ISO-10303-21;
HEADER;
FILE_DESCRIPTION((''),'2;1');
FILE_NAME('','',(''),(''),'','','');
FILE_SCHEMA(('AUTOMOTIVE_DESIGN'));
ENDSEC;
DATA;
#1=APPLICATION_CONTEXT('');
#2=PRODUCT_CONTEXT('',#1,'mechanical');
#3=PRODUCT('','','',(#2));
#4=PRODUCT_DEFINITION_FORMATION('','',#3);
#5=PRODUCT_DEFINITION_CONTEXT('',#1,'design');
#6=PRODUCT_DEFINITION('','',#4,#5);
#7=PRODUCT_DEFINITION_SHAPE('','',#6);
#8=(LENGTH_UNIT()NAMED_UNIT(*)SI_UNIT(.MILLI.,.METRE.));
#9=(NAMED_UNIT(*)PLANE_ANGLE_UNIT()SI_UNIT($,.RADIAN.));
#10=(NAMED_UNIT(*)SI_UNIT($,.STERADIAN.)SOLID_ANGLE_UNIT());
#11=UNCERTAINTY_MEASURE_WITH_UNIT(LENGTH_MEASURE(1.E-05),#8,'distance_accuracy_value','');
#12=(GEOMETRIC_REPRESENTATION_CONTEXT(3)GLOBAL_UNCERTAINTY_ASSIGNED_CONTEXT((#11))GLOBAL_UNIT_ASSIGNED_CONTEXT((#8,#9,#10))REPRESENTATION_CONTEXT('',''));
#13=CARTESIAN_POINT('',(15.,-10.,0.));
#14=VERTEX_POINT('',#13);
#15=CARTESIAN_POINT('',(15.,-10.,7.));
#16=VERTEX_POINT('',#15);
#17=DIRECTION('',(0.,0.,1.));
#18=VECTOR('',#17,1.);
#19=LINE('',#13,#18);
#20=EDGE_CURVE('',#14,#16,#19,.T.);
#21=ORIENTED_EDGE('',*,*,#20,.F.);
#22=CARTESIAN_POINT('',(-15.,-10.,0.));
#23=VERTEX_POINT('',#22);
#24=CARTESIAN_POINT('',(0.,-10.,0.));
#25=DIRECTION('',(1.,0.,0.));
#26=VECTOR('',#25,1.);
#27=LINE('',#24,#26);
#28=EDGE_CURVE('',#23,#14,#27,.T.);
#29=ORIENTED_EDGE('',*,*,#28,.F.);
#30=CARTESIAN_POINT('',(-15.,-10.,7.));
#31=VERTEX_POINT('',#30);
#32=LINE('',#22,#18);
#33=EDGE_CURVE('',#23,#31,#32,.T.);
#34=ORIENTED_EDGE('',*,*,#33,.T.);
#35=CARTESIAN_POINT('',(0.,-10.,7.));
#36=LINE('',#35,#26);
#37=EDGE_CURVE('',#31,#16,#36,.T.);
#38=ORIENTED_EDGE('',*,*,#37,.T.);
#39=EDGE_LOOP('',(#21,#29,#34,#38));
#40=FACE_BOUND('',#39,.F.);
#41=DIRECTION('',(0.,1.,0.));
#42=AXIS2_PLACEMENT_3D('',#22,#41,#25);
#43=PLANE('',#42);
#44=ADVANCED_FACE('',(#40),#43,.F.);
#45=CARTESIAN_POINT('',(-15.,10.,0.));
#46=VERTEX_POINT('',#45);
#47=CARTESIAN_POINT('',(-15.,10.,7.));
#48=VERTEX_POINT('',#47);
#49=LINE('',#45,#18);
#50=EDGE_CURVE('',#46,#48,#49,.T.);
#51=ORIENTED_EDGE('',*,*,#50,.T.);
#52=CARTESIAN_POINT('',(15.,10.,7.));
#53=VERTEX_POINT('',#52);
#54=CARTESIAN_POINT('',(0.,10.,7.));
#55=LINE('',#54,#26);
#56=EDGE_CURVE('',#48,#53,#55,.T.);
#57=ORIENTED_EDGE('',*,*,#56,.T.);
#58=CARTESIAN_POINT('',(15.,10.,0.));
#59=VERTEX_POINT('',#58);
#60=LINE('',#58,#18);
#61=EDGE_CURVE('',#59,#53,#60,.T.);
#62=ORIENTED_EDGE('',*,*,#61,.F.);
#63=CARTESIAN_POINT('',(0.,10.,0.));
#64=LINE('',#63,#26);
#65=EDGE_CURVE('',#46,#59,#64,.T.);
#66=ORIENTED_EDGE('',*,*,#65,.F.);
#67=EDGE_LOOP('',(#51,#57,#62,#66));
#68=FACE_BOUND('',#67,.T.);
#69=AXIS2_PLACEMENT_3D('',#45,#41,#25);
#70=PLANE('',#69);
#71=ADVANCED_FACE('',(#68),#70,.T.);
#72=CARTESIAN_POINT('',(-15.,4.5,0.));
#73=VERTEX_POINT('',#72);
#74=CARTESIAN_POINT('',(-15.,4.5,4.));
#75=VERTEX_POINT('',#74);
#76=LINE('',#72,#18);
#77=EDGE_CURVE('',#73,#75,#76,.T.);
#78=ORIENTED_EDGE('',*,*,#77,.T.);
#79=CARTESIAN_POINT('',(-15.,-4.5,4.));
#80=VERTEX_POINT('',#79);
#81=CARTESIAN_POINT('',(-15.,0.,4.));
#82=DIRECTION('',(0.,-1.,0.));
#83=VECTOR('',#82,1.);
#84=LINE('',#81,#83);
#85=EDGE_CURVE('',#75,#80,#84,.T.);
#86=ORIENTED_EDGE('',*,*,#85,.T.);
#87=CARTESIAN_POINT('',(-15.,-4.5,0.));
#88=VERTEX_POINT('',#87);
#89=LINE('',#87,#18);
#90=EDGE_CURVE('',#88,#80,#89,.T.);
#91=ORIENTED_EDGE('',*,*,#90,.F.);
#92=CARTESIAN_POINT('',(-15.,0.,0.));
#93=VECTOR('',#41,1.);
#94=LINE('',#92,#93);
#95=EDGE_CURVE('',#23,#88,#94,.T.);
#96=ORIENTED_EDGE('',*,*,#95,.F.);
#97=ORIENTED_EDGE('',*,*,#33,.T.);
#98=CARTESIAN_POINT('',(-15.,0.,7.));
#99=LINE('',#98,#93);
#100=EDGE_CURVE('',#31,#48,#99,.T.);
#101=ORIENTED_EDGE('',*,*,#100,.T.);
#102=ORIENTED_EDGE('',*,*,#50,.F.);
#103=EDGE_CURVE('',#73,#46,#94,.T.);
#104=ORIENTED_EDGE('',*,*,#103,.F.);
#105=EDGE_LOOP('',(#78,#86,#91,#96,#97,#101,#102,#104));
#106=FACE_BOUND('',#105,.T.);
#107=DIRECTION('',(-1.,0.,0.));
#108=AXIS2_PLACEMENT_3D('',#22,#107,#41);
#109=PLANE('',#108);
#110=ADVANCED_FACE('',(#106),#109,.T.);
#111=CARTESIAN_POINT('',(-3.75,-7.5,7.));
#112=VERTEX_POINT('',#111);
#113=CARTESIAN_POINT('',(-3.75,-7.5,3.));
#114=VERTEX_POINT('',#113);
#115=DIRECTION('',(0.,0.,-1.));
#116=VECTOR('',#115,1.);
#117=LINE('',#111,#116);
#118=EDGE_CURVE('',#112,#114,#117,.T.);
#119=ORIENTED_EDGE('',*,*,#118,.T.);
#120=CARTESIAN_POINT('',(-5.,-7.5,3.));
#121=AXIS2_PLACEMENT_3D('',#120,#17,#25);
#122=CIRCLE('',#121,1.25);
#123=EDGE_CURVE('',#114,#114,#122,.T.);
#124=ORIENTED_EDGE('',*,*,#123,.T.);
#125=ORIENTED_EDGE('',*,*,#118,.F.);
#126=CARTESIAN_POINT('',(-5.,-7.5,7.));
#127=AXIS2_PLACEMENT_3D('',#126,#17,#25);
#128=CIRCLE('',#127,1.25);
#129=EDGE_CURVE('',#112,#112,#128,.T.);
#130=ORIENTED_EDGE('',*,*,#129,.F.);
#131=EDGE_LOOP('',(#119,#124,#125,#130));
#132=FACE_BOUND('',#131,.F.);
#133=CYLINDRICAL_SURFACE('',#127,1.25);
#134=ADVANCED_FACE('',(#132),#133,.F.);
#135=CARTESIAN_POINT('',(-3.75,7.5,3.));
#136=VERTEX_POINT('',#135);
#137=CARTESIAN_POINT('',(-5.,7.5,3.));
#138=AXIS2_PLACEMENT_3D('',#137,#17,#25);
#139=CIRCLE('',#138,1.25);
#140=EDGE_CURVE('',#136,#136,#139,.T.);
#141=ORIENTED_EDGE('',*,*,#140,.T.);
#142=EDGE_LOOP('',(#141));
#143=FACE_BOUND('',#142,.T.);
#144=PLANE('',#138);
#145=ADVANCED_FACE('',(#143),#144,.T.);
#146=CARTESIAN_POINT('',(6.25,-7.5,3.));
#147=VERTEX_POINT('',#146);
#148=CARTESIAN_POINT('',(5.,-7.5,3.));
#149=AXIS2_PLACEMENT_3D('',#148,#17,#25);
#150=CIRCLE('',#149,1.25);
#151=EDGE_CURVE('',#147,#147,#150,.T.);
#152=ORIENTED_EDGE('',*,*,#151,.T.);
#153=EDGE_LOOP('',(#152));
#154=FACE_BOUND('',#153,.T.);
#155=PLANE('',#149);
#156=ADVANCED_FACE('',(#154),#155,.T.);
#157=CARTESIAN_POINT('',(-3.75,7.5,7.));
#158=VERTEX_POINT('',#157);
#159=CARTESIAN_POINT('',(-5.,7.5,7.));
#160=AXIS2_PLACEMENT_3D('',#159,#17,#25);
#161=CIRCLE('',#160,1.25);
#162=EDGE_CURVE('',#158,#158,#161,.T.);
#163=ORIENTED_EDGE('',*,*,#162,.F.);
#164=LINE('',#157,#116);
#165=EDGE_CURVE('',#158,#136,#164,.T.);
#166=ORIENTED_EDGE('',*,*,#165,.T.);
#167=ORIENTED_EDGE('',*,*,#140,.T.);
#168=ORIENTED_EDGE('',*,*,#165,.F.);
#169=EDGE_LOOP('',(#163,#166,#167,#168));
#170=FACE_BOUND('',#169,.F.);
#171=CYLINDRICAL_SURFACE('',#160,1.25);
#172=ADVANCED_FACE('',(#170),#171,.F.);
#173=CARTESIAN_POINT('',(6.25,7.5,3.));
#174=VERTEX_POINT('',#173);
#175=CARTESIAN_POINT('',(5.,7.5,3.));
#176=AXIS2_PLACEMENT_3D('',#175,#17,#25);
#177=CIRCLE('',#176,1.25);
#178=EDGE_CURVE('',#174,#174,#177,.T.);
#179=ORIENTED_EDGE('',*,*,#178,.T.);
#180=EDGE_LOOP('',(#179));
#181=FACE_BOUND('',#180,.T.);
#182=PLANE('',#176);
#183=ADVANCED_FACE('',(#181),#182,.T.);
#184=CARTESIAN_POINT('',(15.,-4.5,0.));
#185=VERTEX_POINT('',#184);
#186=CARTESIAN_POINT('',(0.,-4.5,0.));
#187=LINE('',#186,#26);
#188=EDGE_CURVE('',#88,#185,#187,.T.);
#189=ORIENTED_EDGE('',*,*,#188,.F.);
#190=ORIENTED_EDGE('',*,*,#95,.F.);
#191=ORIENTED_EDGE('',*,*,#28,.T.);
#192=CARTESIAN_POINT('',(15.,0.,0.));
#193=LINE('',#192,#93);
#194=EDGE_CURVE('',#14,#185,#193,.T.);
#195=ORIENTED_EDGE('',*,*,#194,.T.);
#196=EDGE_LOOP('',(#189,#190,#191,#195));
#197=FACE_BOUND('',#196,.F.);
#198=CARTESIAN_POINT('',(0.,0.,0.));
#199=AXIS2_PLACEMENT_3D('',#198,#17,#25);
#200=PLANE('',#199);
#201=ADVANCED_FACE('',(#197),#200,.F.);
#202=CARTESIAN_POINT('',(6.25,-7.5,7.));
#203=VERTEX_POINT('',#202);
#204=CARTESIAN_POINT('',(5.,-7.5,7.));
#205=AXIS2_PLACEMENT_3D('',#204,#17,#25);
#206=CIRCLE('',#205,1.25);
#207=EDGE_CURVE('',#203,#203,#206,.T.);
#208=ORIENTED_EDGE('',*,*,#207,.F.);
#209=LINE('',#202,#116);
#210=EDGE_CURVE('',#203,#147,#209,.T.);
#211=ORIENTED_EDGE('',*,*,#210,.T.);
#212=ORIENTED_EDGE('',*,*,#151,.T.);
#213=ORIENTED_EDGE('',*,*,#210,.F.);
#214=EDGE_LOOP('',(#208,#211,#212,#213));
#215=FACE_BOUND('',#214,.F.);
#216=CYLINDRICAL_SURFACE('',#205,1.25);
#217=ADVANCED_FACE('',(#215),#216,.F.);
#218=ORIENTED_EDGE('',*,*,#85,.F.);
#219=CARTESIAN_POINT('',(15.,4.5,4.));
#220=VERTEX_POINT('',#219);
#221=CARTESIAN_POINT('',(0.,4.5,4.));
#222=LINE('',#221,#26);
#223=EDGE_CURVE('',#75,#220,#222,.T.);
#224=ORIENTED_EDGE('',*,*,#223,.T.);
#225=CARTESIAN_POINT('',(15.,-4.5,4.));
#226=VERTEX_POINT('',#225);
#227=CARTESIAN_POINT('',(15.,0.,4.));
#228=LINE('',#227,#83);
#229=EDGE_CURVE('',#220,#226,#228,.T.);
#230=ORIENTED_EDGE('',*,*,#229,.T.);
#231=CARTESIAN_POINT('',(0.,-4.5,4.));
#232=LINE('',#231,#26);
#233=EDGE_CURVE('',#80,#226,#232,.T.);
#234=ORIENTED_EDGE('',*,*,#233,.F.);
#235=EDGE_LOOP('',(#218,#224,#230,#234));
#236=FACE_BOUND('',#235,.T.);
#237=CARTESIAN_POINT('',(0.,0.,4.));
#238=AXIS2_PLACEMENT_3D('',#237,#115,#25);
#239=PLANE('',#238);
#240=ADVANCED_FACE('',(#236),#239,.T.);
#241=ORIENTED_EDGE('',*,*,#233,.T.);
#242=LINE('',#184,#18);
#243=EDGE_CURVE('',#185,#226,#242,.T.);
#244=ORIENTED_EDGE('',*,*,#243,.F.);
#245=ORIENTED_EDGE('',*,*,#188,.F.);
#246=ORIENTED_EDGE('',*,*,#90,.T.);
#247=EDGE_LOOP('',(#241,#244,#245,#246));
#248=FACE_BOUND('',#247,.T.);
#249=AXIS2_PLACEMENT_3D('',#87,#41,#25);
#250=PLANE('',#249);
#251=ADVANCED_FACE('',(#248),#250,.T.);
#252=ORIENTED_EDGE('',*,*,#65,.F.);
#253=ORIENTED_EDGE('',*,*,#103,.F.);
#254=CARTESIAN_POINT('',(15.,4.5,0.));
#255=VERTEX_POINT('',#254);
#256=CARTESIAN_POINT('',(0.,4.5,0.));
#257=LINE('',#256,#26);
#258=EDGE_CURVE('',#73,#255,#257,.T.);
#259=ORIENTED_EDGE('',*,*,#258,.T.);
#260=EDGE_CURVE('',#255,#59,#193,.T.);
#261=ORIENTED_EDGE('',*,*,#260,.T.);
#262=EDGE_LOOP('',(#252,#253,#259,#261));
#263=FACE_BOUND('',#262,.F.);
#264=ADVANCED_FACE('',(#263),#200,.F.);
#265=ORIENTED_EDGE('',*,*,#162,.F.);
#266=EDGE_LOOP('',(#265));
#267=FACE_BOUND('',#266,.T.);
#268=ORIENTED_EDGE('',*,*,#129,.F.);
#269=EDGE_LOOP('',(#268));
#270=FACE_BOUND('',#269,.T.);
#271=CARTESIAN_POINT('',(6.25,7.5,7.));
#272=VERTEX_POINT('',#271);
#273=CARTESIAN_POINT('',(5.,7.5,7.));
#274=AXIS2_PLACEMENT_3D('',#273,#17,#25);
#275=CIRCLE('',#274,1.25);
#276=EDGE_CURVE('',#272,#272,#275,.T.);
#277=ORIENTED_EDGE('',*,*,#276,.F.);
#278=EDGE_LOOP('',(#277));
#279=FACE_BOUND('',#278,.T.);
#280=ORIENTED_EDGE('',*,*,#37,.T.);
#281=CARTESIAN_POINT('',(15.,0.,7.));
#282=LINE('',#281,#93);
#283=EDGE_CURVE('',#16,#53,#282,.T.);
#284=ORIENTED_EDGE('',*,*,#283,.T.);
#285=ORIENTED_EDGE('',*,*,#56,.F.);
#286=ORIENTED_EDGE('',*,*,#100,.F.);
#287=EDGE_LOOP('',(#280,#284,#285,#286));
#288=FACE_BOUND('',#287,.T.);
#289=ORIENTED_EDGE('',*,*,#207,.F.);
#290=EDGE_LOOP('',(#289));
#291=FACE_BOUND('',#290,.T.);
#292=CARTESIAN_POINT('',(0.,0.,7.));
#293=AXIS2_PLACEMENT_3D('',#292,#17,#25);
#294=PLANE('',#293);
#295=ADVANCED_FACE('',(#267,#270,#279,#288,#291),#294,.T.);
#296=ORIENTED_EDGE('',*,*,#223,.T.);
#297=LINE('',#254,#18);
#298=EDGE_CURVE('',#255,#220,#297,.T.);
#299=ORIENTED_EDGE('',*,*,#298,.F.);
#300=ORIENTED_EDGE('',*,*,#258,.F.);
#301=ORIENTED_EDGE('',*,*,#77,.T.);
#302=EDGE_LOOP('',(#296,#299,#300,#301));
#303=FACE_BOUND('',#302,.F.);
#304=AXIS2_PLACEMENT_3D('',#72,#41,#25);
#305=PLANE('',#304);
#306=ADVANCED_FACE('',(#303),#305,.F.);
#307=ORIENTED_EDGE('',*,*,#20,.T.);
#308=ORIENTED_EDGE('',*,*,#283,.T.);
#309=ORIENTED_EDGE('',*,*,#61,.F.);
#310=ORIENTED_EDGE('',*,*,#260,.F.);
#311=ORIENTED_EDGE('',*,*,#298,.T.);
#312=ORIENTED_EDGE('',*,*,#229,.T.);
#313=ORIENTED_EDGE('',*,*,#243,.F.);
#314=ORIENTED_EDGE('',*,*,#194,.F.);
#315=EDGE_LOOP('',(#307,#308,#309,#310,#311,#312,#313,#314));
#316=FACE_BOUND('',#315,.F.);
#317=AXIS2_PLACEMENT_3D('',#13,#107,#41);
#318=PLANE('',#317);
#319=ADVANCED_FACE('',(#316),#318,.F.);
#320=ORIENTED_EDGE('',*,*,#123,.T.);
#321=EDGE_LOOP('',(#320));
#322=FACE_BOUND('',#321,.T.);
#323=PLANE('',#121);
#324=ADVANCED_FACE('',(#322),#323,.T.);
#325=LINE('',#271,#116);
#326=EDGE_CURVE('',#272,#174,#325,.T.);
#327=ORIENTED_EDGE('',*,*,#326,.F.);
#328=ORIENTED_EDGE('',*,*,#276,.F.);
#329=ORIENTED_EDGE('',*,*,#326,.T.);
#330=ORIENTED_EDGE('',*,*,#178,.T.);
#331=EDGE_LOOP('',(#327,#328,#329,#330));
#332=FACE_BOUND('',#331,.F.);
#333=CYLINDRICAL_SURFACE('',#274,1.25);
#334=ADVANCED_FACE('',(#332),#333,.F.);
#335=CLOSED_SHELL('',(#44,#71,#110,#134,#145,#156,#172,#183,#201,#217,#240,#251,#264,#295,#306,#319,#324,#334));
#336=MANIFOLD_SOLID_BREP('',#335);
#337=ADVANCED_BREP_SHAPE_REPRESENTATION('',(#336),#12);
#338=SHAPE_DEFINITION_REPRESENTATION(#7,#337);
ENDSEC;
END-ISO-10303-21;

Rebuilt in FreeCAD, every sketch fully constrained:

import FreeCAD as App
import Part
import Sketcher

V = App.Vector

doc = App.newDocument("Part")
body = doc.addObject("PartDesign::Body", "Body")

sketch1 = doc.addObject("Sketcher::SketchObject", "Sketch")
body.addObject(sketch1)
sketch1.AttachmentSupport = (doc.XY_Plane, [""])
sketch1.MapMode = "FlatFace"
sketch1.addGeometry(Part.LineSegment(V(-15, 10, 0), V(-15, -10, 0)), False)
sketch1.addGeometry(Part.LineSegment(V(-15, -10, 0), V(15, -10, 0)), False)
sketch1.addGeometry(Part.LineSegment(V(15, -10, 0), V(15, 10, 0)), False)
sketch1.addGeometry(Part.LineSegment(V(15, 10, 0), V(-15, 10, 0)), False)
sketch1.addConstraint(Sketcher.Constraint("Coincident", 0, 2, 1, 1))
sketch1.addConstraint(Sketcher.Constraint("Coincident", 1, 2, 2, 1))
sketch1.addConstraint(Sketcher.Constraint("Coincident", 2, 2, 3, 1))
sketch1.addConstraint(Sketcher.Constraint("Coincident", 3, 2, 0, 1))
sketch1.addConstraint(Sketcher.Constraint("Vertical", 0))
sketch1.addConstraint(Sketcher.Constraint("Horizontal", 1))
sketch1.addConstraint(Sketcher.Constraint("Vertical", 2))
sketch1.addConstraint(Sketcher.Constraint("Horizontal", 3))
sketch1.addConstraint(Sketcher.Constraint("Symmetric", 0, 2, 2, 2, -1, 1))
sketch1.addConstraint(Sketcher.Constraint("DistanceX", 1, 1, 1, 2, 30.0))
sketch1.addConstraint(Sketcher.Constraint("DistanceY", 0, 2, 0, 1, 20.0))
pad1 = doc.addObject("PartDesign::Pad", "Pad")
body.addObject(pad1)
pad1.Profile = sketch1
pad1.Length = 7

sketch2 = doc.addObject("Sketcher::SketchObject", "Sketch001")
body.addObject(sketch2)
sketch2.AttachmentSupport = (doc.XY_Plane, [""])
sketch2.MapMode = "FlatFace"
sketch2.AttachmentOffset = App.Placement(V(0, 0, 7), App.Rotation())
sketch2.addGeometry(Part.Circle(V(5, 7.5, 0), V(0, 0, 1), 1.25), False)
sketch2.addGeometry(Part.Circle(V(-5, 7.5, 0), V(0, 0, 1), 1.25), False)
sketch2.addGeometry(Part.Circle(V(-5, -7.5, 0), V(0, 0, 1), 1.25), False)
sketch2.addGeometry(Part.Circle(V(5, -7.5, 0), V(0, 0, 1), 1.25), False)
sketch2.addConstraint(Sketcher.Constraint("Equal", 0, 1))
sketch2.addConstraint(Sketcher.Constraint("Equal", 1, 2))
sketch2.addConstraint(Sketcher.Constraint("Equal", 2, 3))
sketch2.addConstraint(Sketcher.Constraint("Symmetric", 0, 3, 2, 3, -1, 1))
sketch2.addConstraint(Sketcher.Constraint("Symmetric", 1, 3, 3, 3, -1, 1))
sketch2.addConstraint(Sketcher.Constraint("Symmetric", 0, 3, 1, 3, -2))
sketch2.addConstraint(Sketcher.Constraint("Diameter", 0, 2.5))
sketch2.addConstraint(Sketcher.Constraint("DistanceX", -1, 1, 0, 3, 5.0))
sketch2.addConstraint(Sketcher.Constraint("DistanceY", 2, 3, 1, 3, 15.0))
pocket1 = doc.addObject("PartDesign::Pocket", "Pocket")
body.addObject(pocket1)
pocket1.Profile = sketch2
pocket1.Length = 4

sketch3 = doc.addObject("Sketcher::SketchObject", "Sketch002")
body.addObject(sketch3)
sketch3.AttachmentSupport = (doc.XY_Plane, [""])
sketch3.MapMode = "FlatFace"
sketch3.addGeometry(Part.LineSegment(V(-15, -4.5, 0), V(-15, 4.5, 0)), False)
sketch3.addGeometry(Part.LineSegment(V(-15, 4.5, 0), V(15, 4.5, 0)), False)
sketch3.addGeometry(Part.LineSegment(V(15, 4.5, 0), V(15, -4.5, 0)), False)
sketch3.addGeometry(Part.LineSegment(V(15, -4.5, 0), V(-15, -4.5, 0)), False)
sketch3.addConstraint(Sketcher.Constraint("Coincident", 0, 2, 1, 1))
sketch3.addConstraint(Sketcher.Constraint("Coincident", 1, 2, 2, 1))
sketch3.addConstraint(Sketcher.Constraint("Coincident", 2, 2, 3, 1))
sketch3.addConstraint(Sketcher.Constraint("Coincident", 3, 2, 0, 1))
sketch3.addConstraint(Sketcher.Constraint("Vertical", 0))
sketch3.addConstraint(Sketcher.Constraint("Horizontal", 1))
sketch3.addConstraint(Sketcher.Constraint("Vertical", 2))
sketch3.addConstraint(Sketcher.Constraint("Horizontal", 3))
sketch3.addConstraint(Sketcher.Constraint("Symmetric", 0, 2, 2, 2, -1, 1))
sketch3.addConstraint(Sketcher.Constraint("DistanceX", 1, 1, 1, 2, 30.0))
sketch3.addConstraint(Sketcher.Constraint("DistanceY", 0, 1, 0, 2, 9.0))
pocket2 = doc.addObject("PartDesign::Pocket", "Pocket001")
body.addObject(pocket2)
pocket2.Profile = sketch3
pocket2.Length = 4
pocket2.Reversed = True

doc.recompute()
